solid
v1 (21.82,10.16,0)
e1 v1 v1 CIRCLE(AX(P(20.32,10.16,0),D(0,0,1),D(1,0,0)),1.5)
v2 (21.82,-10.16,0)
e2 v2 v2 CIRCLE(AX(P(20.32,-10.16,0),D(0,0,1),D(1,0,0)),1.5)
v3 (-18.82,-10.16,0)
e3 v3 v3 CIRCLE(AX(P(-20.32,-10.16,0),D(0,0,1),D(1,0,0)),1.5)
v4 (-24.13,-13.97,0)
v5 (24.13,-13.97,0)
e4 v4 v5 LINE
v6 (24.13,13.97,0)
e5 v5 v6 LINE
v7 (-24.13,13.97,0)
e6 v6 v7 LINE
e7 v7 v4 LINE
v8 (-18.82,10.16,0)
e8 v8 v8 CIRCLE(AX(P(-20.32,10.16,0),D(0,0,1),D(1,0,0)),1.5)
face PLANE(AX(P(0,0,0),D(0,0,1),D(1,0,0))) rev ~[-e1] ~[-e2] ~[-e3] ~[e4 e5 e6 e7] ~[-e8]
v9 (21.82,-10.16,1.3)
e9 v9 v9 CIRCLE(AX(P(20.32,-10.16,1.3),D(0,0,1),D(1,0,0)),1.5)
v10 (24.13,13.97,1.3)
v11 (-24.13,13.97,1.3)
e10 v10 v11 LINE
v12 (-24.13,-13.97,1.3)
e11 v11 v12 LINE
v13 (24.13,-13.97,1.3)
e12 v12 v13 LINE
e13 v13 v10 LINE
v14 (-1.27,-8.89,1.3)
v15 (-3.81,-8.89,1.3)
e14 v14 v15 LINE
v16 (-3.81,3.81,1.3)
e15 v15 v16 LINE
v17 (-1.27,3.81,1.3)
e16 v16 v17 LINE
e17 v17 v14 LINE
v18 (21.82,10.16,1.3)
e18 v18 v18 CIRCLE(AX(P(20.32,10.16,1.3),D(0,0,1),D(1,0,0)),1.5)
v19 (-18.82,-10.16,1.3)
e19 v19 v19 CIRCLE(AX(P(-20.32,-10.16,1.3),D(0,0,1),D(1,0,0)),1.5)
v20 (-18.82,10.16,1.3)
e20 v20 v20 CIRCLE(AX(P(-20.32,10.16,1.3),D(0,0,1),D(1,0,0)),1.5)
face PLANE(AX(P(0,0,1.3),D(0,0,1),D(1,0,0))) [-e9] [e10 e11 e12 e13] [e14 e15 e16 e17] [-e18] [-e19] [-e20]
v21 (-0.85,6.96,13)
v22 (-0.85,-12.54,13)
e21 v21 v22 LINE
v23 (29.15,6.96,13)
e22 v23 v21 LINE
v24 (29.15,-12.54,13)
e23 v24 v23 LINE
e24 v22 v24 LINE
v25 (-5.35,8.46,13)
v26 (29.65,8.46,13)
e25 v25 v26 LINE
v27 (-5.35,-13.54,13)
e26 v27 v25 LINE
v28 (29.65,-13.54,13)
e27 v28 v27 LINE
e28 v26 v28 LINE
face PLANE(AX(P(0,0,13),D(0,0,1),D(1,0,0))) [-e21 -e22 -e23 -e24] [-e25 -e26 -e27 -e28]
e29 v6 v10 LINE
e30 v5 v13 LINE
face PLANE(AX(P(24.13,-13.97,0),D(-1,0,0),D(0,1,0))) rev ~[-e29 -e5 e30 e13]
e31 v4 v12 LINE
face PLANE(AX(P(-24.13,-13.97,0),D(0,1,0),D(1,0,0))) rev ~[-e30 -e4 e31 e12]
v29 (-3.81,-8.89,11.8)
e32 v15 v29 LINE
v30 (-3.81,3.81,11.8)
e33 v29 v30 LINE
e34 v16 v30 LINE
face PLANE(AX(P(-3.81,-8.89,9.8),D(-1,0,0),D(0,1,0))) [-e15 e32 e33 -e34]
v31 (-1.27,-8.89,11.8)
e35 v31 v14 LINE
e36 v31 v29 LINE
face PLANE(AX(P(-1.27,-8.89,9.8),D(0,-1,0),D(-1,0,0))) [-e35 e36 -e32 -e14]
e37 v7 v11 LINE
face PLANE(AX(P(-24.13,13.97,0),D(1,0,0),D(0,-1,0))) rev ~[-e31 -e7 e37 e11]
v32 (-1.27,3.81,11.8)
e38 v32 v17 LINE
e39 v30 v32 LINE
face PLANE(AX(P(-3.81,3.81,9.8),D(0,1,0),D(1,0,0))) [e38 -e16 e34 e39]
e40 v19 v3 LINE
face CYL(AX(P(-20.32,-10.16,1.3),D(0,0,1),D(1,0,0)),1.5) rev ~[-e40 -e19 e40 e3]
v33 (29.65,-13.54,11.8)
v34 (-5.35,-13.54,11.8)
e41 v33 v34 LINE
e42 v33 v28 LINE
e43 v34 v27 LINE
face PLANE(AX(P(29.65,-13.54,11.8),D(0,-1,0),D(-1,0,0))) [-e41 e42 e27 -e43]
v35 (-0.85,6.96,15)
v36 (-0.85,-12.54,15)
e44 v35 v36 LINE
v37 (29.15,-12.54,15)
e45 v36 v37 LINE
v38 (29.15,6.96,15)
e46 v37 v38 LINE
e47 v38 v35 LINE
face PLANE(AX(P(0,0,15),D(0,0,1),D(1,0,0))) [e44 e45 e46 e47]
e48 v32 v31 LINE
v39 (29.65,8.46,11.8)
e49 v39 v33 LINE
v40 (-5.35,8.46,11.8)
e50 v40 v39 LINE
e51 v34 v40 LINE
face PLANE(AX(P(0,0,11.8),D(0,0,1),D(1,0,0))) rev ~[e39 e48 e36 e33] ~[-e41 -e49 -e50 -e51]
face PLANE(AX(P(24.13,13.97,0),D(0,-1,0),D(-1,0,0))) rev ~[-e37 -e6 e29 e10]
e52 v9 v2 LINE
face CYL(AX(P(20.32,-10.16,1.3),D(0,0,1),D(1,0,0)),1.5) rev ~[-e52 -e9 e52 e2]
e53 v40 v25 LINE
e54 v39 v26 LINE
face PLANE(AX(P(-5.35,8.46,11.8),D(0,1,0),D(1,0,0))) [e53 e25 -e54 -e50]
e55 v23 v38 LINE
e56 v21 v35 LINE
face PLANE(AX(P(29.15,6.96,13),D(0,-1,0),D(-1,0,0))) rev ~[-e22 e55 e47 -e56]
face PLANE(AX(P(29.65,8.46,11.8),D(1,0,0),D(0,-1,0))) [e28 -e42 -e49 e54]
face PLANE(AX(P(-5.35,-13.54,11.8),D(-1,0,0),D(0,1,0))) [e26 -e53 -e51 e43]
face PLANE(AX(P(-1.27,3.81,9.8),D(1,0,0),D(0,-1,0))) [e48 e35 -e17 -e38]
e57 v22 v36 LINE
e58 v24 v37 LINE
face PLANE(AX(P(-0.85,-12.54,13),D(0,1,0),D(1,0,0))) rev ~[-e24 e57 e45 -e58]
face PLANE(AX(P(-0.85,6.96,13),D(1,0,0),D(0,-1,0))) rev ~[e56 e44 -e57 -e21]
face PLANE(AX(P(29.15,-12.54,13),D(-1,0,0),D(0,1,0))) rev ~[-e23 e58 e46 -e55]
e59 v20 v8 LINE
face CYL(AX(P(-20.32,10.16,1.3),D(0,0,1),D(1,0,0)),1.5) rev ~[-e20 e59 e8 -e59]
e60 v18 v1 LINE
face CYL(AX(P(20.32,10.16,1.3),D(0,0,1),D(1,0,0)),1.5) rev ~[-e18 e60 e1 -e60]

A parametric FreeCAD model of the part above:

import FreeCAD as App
import Part
import Sketcher


def add_polygon(sketch, points):
    """Adds a closed chain of lines whose ends are joined by coincident constraints."""
    first, n = sketch.GeometryCount, len(points)
    for a, b in zip(points, points[1:] + points[:1]):
        sketch.addGeometry(Part.LineSegment(App.Vector(*a, 0), App.Vector(*b, 0)), False)
    for i in range(n):
        sketch.addConstraint(Sketcher.Constraint("Coincident", first + i, 2, first + (i + 1) % n, 1))

doc = App.newDocument("Part")
body = doc.addObject("PartDesign::Body", "Body")

# Sketch on XY plane
sketch1 = body.newObject("Sketcher::SketchObject", "Sketch")
sketch1.AttachmentSupport = (doc.getObject("XY_Plane"), [""])
sketch1.MapMode = "FlatFace"
add_polygon(sketch1, [(-24.13, 13.97), (-24.13, -13.97), (24.13, -13.97), (24.13, 13.97)])  # lines 0-3
sketch1.addConstraint(Sketcher.Constraint("Vertical", 0))
sketch1.addConstraint(Sketcher.Constraint("Horizontal", 1))
sketch1.addConstraint(Sketcher.Constraint("Vertical", 2))
sketch1.addConstraint(Sketcher.Constraint("Horizontal", 3))
sketch1.addConstraint(Sketcher.Constraint("Symmetric", 0, 2, 2, 2, -1, 1))
sketch1.addConstraint(Sketcher.Constraint("DistanceX", 1, 1, 1, 2, 48.26))
sketch1.addConstraint(Sketcher.Constraint("DistanceY", 0, 2, 0, 1, 27.94))
pad1 = body.newObject("PartDesign::Pad", "Pad")
pad1.Profile = sketch1
pad1.Length = 1.3

# Sketch on XY plane
sketch2 = body.newObject("Sketcher::SketchObject", "Sketch001")
sketch2.AttachmentSupport = (doc.getObject("XY_Plane"), [""])
sketch2.MapMode = "FlatFace"
sketch2.AttachmentOffset = App.Placement(App.Vector(0, 0, 1.3), App.Rotation())
sketch2.addGeometry(Part.Circle(App.Vector(-20.32, 10.16, 0), App.Vector(0, 0, 1), 1.5), False)
sketch2.addGeometry(Part.Circle(App.Vector(-20.32, -10.16, 0), App.Vector(0, 0, 1), 1.5), False)
sketch2.addGeometry(Part.Circle(App.Vector(20.32, -10.16, 0), App.Vector(0, 0, 1), 1.5), False)
sketch2.addGeometry(Part.Circle(App.Vector(20.32, 10.16, 0), App.Vector(0, 0, 1), 1.5), False)
sketch2.addConstraint(Sketcher.Constraint("Equal", 0, 1))
sketch2.addConstraint(Sketcher.Constraint("Equal", 1, 2))
sketch2.addConstraint(Sketcher.Constraint("Equal", 2, 3))
sketch2.addConstraint(Sketcher.Constraint("Symmetric", 0, 3, 2, 3, -1, 1))
sketch2.addConstraint(Sketcher.Constraint("Symmetric", 1, 3, 3, 3, -1, 1))
sketch2.addConstraint(Sketcher.Constraint("Symmetric", 1, 3, 2, 3, -2))
sketch2.addConstraint(Sketcher.Constraint("Diameter", 0, 3.0))
sketch2.addConstraint(Sketcher.Constraint("DistanceX", 0, 3, -1, 1, 20.32))
sketch2.addConstraint(Sketcher.Constraint("DistanceY", -1, 1, 0, 3, 10.16))
pocket1 = body.newObject("PartDesign::Pocket", "Pocket")
pocket1.Profile = sketch2
pocket1.Length = 1.3

# Sketch on XY plane
sketch3 = body.newObject("Sketcher::SketchObject", "Sketch002")
sketch3.AttachmentSupport = (doc.getObject("XY_Plane"), [""])
sketch3.MapMode = "FlatFace"
sketch3.AttachmentOffset = App.Placement(App.Vector(0, 0, 1.3), App.Rotation())
add_polygon(sketch3, [(-3.81, -8.89), (-1.27, -8.89), (-1.27, 3.81), (-3.81, 3.81)])  # lines 0-3
sketch3.addConstraint(Sketcher.Constraint("Horizontal", 0))
sketch3.addConstraint(Sketcher.Constraint("Vertical", 1))
sketch3.addConstraint(Sketcher.Constraint("Horizontal", 2))
sketch3.addConstraint(Sketcher.Constraint("Vertical", 3))
sketch3.addConstraint(Sketcher.Constraint("DistanceY", 1, 1, 1, 2, 12.7))
sketch3.addConstraint(Sketcher.Constraint("DistanceX", 0, 1, 0, 2, 2.54))
sketch3.addConstraint(Sketcher.Constraint("DistanceX", 0, 2, -1, 1, 1.27))
sketch3.addConstraint(Sketcher.Constraint("DistanceY", 0, 2, -1, 1, 8.89))
pad2 = body.newObject("PartDesign::Pad", "Pad001")
pad2.Profile = sketch3
pad2.Length = 8.5

# Sketch on XY plane
sketch4 = body.newObject("Sketcher::SketchObject", "Sketch003")
sketch4.AttachmentSupport = (doc.getObject("XY_Plane"), [""])
sketch4.MapMode = "FlatFace"
sketch4.AttachmentOffset = App.Placement(App.Vector(0, 0, 9.8), App.Rotation())
add_polygon(sketch4, [(-1.27, 3.81), (-3.81, 3.81), (-3.81, -8.89), (-1.27, -8.89)])  # lines 0-3
sketch4.addConstraint(Sketcher.Constraint("Horizontal", 0))
sketch4.addConstraint(Sketcher.Constraint("Vertical", 1))
sketch4.addConstraint(Sketcher.Constraint("Horizontal", 2))
sketch4.addConstraint(Sketcher.Constraint("Vertical", 3))
sketch4.addConstraint(Sketcher.Constraint("DistanceY", 1, 2, 1, 1, 12.7))
sketch4.addConstraint(Sketcher.Constraint("DistanceX", 0, 2, 0, 1, 2.54))
sketch4.addConstraint(Sketcher.Constraint("DistanceX", 0, 2, -1, 1, 3.81))
sketch4.addConstraint(Sketcher.Constraint("DistanceY", -1, 1, 0, 2, 3.81))
pad3 = body.newObject("PartDesign::Pad", "Pad002")
pad3.Profile = sketch4
pad3.Length = 2

# Sketch on XY plane
sketch5 = body.newObject("Sketcher::SketchObject", "Sketch004")
sketch5.AttachmentSupport = (doc.getObject("XY_Plane"), [""])
sketch5.MapMode = "FlatFace"
sketch5.AttachmentOffset = App.Placement(App.Vector(0, 0, 11.8), App.Rotation())
add_polygon(sketch5, [(29.65, 8.46), (-5.35, 8.46), (-5.35, -13.54), (29.65, -13.54)])  # lines 0-3
sketch5.addConstraint(Sketcher.Constraint("Horizontal", 0))
sketch5.addConstraint(Sketcher.Constraint("Vertical", 1))
sketch5.addConstraint(Sketcher.Constraint("Horizontal", 2))
sketch5.addConstraint(Sketcher.Constraint("Vertical", 3))
sketch5.addConstraint(Sketcher.Constraint("DistanceX", 0, 2, 0, 1, 35.0))
sketch5.addConstraint(Sketcher.Constraint("DistanceY", 1, 2, 1, 1, 22.0))
sketch5.addConstraint(Sketcher.Constraint("DistanceX", 0, 2, -1, 1, 5.35))
sketch5.addConstraint(Sketcher.Constraint("DistanceY", -1, 1, 0, 2, 8.46))
pad4 = body.newObject("PartDesign::Pad", "Pad003")
pad4.Profile = sketch5
pad4.Length = 1.2

# Sketch on XY plane
sketch6 = body.newObject("Sketcher::SketchObject", "Sketch005")
sketch6.AttachmentSupport = (doc.getObject("XY_Plane"), [""])
sketch6.MapMode = "FlatFace"
sketch6.AttachmentOffset = App.Placement(App.Vector(0, 0, 13), App.Rotation())
add_polygon(sketch6, [(29.15, -12.54), (29.15, 6.96), (-0.85, 6.96), (-0.85, -12.54)])  # lines 0-3
sketch6.addConstraint(Sketcher.Constraint("Vertical", 0))
sketch6.addConstraint(Sketcher.Constraint("Horizontal", 1))
sketch6.addConstraint(Sketcher.Constraint("Vertical", 2))
sketch6.addConstraint(Sketcher.Constraint("Horizontal", 3))
sketch6.addConstraint(Sketcher.Constraint("DistanceX", 1, 2, 1, 1, 30.0))
sketch6.addConstraint(Sketcher.Constraint("DistanceY", 0, 1, 0, 2, 19.5))
sketch6.addConstraint(Sketcher.Constraint("DistanceX", -1, 1, 0, 2, 29.15))
sketch6.addConstraint(Sketcher.Constraint("DistanceY", -1, 1, 0, 2, 6.96))
pad5 = body.newObject("PartDesign::Pad", "Pad004")
pad5.Profile = sketch6
pad5.Length = 2

doc.recompute()
